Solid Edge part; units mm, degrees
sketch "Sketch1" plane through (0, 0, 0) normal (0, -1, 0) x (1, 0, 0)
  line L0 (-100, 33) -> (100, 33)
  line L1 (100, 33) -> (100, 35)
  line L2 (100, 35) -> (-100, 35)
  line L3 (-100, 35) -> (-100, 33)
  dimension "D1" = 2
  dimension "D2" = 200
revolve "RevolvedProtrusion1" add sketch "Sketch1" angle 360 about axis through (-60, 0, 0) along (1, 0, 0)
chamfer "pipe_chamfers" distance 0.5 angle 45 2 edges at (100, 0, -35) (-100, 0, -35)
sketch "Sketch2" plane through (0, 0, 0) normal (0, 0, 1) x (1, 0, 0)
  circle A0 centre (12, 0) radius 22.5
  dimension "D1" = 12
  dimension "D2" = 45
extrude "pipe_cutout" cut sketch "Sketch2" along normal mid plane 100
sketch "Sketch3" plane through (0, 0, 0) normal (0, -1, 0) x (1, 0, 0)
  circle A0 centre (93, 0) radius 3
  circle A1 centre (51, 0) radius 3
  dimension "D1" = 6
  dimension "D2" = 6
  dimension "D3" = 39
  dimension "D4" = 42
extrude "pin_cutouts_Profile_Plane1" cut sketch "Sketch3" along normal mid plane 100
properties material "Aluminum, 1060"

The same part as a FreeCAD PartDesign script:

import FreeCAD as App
import Part
import Sketcher

V = App.Vector


def edges_at(feature, points):
    """Names of the edges that pass closest to the given points."""
    edges = feature.Shape.Edges
    near = lambda p: min(range(len(edges)), key=lambda i: edges[i].distToShape(Part.Vertex(*p))[0])
    return sorted({f"Edge{near(p) + 1}" for p in points})

doc = App.newDocument("Part")
body = doc.addObject("PartDesign::Body", "Body")

# Sketch on XZ plane
sketch1 = body.newObject("Sketcher::SketchObject", "Sketch")
sketch1.AttachmentSupport = (doc.getObject("XZ_Plane"), [""])
sketch1.MapMode = "FlatFace"
sketch1.addGeometry([
    Part.LineSegment(V(-100, 35, 0), V(-100, 33, 0)),
    Part.LineSegment(V(-100, 33, 0), V(100, 33, 0)),
    Part.LineSegment(V(100, 33, 0), V(100, 35, 0)),
    Part.LineSegment(V(100, 35, 0), V(-100, 35, 0)),
], False)
sketch1.addConstraint([
    Sketcher.Constraint("Coincident", 0, 2, 1, 1),
    Sketcher.Constraint("Coincident", 1, 2, 2, 1),
    Sketcher.Constraint("Coincident", 2, 2, 3, 1),
    Sketcher.Constraint("Coincident", 3, 2, 0, 1),
    Sketcher.Constraint("Vertical", 0),
    Sketcher.Constraint("Horizontal", 1),
    Sketcher.Constraint("Vertical", 2),
    Sketcher.Constraint("Horizontal", 3),
    Sketcher.Constraint("DistanceX", 0, 2, -1, 1, 100.0),
    Sketcher.Constraint("DistanceX", -1, 1, 1, 2, 100.0),
    Sketcher.Constraint("DistanceY", 0, 2, 0, 1, 2.0),
    Sketcher.Constraint("DistanceY", -1, 1, 0, 2, 33.0),
])
revolution = body.newObject("PartDesign::Revolution", "Revolution")
revolution.Profile = sketch1
revolution.ReferenceAxis = (sketch1, ["H_Axis"])
revolution.Angle = 360
doc.recompute()

chamfer = body.newObject("PartDesign::Chamfer", "Chamfer")
chamfer.Base = (revolution, edges_at(revolution, [(100, 0, -35), (-100, 0, -35)]))
chamfer.Size = 0.5

# Sketch on XY plane
sketch2 = body.newObject("Sketcher::SketchObject", "Sketch001")
sketch2.AttachmentSupport = (doc.getObject("XY_Plane"), [""])
sketch2.MapMode = "FlatFace"
sketch2.addGeometry(Part.Circle(V(12, 0, 0), V(0, 0, 1), 22.5), False)
sketch2.addConstraint([
    Sketcher.Constraint("PointOnObject", 0, 3, -1),
    Sketcher.Constraint("Diameter", 0, 45.0),
    Sketcher.Constraint("DistanceX", -1, 1, 0, 3, 12.0),
])
pocket1 = body.newObject("PartDesign::Pocket", "Pocket")
pocket1.Profile = sketch2
pocket1.Length = 100
pocket1.Midplane = True

# Sketch on XZ plane
sketch3 = body.newObject("Sketcher::SketchObject", "Sketch002")
sketch3.AttachmentSupport = (doc.getObject("XZ_Plane"), [""])
sketch3.MapMode = "FlatFace"
sketch3.addGeometry([
    Part.Circle(V(93, 0, 0), V(0, 0, 1), 3),
    Part.Circle(V(51, 0, 0), V(0, 0, 1), 3),
], False)
sketch3.addConstraint([
    Sketcher.Constraint("Equal", 0, 1),
    Sketcher.Constraint("PointOnObject", 0, 3, -1),
    Sketcher.Constraint("PointOnObject", 1, 3, -1),
    Sketcher.Constraint("Diameter", 0, 6.0),
    Sketcher.Constraint("DistanceX", -1, 1, 0, 3, 93.0),
    Sketcher.Constraint("DistanceX", -1, 1, 1, 3, 51.0),
])
pocket2 = body.newObject("PartDesign::Pocket", "Pocket001")
pocket2.Profile = sketch3
pocket2.Length = 100
pocket2.Midplane = True

doc.recompute()
